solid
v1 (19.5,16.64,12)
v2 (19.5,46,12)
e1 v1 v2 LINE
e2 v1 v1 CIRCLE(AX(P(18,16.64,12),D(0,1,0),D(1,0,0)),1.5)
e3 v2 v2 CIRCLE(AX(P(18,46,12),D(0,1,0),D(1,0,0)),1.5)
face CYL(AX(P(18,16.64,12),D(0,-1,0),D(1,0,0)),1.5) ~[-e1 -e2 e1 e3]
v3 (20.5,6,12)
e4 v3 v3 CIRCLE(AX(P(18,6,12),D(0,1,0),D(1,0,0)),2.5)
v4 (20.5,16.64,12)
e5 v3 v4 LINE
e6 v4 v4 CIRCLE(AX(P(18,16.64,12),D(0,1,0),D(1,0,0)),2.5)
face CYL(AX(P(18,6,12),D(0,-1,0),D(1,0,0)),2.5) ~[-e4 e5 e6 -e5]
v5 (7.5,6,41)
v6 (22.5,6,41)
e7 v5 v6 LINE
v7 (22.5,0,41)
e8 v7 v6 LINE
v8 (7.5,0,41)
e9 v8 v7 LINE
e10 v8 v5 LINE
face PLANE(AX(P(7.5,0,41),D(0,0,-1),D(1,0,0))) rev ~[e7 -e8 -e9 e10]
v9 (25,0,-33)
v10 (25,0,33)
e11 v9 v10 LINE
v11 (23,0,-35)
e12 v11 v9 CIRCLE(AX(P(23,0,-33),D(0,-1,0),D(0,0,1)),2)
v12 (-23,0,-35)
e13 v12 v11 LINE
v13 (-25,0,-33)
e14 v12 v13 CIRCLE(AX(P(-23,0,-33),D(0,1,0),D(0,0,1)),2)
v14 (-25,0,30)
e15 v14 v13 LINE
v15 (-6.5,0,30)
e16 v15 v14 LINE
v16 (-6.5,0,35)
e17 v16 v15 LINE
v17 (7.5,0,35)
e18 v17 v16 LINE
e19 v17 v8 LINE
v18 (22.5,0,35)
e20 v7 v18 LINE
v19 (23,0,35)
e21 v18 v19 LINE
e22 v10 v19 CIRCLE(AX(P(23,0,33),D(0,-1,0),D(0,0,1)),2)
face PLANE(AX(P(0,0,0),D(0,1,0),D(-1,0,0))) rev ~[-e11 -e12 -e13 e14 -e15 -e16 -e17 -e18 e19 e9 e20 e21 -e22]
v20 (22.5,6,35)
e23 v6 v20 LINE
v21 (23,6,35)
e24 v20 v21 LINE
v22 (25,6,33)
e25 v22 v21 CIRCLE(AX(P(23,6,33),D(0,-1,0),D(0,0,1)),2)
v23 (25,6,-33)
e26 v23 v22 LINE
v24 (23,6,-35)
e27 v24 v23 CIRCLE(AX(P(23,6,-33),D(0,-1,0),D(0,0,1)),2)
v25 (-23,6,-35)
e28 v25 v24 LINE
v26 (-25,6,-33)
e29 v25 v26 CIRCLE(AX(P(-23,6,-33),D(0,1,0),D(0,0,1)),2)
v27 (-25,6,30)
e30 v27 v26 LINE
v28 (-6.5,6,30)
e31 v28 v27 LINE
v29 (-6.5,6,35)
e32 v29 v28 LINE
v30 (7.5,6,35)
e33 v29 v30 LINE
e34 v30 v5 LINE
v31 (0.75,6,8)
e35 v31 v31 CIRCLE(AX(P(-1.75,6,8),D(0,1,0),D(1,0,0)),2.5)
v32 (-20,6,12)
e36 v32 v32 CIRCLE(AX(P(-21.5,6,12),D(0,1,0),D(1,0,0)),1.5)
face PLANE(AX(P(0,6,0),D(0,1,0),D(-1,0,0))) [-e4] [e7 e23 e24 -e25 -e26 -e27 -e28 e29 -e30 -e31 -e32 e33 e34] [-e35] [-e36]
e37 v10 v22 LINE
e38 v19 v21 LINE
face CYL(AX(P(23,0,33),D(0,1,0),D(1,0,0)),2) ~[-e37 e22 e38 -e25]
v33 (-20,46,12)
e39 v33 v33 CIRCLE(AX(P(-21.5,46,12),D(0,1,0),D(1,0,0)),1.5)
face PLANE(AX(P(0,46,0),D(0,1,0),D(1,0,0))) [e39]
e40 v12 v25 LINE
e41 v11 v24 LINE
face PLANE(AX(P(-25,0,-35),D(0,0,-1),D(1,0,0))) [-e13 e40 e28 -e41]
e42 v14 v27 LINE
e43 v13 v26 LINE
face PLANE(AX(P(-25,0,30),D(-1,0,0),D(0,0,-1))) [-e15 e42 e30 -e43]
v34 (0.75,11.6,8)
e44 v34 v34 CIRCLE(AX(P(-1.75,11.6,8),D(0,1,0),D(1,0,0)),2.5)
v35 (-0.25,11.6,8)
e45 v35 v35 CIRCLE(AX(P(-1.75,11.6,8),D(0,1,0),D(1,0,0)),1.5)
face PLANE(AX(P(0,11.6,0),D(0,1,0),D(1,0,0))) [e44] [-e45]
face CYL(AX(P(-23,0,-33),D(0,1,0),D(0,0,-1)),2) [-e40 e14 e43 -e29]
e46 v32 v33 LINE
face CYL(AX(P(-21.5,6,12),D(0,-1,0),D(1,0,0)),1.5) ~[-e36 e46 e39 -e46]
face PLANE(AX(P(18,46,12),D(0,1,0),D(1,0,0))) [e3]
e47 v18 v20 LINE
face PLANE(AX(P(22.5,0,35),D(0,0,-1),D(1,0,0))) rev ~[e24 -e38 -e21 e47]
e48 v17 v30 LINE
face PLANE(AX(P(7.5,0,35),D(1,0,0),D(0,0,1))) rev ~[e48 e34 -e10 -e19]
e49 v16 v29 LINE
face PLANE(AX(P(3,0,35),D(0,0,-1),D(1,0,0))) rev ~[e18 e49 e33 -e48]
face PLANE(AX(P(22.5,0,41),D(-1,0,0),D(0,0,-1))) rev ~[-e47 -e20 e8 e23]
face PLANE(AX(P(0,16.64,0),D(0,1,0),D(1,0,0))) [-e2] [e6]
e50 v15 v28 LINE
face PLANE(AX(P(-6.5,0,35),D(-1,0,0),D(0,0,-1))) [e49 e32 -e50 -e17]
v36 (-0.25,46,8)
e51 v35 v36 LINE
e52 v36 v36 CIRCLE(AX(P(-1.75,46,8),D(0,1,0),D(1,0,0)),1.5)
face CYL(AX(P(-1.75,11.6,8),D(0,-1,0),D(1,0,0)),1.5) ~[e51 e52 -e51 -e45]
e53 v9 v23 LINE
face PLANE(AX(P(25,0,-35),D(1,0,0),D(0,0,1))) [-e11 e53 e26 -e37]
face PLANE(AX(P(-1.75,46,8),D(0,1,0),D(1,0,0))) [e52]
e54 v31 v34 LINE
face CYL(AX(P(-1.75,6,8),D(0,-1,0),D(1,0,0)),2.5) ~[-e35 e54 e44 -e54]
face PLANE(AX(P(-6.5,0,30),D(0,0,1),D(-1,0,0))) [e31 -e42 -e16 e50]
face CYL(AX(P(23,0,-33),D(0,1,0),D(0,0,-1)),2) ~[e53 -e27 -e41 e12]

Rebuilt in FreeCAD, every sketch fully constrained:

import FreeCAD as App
import Part
import Sketcher
from FreeCAD import Vector
Q = App.Units.Quantity


def edges_at(feature, points):
    """Names of the edges that pass closest to the given points."""
    edges = feature.Shape.Edges
    near = lambda p: min(range(len(edges)), key=lambda i: edges[i].distToShape(Part.Vertex(*p))[0])
    return sorted({f"Edge{near(p) + 1}" for p in points})

doc = App.newDocument("Part")
params = doc.addObject("Spreadsheet::Sheet", "Params")
for row, (alias, value) in enumerate([
    ("sketch1_width", "50 mm"),
    ("sketch1_width2", "15 mm"),
    ("sketch1_height", "5 mm"),
    ("sketch1_height2", "6 mm"),
    ("sketch1_height3", "70 mm"),
    ("pad1_length", "6 mm"),
    ("fillet_radius", "2 mm"),
    ("sketch2_diameter", "3 mm"),
    ("pad2_length", "40 mm"),
    ("sketch3_diameter", "5 mm"),
    ("pad3_length", "5.6 mm"),
    ("sketch4_diameter", "3 mm"),
    ("pad4_length", "34.4 mm"),
    ("sketch5_diameter", "5 mm"),
    ("pad5_length", "10.64 mm"),
    ("sketch6_diameter", "3 mm"),
    ("pad6_length", "29.36 mm"),
], start=1):
    params.set(f"A{row}", alias)
    params.set(f"B{row}", "=" + value)
    params.setAlias(f"B{row}", alias)

body = doc.addObject("PartDesign::Body", "Body")

# Sketch on XZ plane
sketch1 = body.newObject("Sketcher::SketchObject", "Sketch")
sketch1.AttachmentSupport = (doc.getObject("XZ_Plane"), [""])
sketch1.MapMode = "FlatFace"
sketch1.addGeometry([
    Part.LineSegment(Vector(25, -35, 0), Vector(-25, -35, 0)),  # 0
    Part.LineSegment(Vector(-25, -35, 0), Vector(-25, 30, 0)),  # 1
    Part.LineSegment(Vector(-25, 30, 0), Vector(-6.5, 30, 0)),  # 2
    Part.LineSegment(Vector(-6.5, 30, 0), Vector(-6.5, 35, 0)),  # 3
    Part.LineSegment(Vector(-6.5, 35, 0), Vector(7.5, 35, 0)),  # 4
    Part.LineSegment(Vector(7.5, 35, 0), Vector(7.5, 41, 0)),  # 5
    Part.LineSegment(Vector(7.5, 41, 0), Vector(22.5, 41, 0)),  # 6
    Part.LineSegment(Vector(22.5, 41, 0), Vector(22.5, 35, 0)),  # 7
    Part.LineSegment(Vector(22.5, 35, 0), Vector(25, 35, 0)),  # 8
    Part.LineSegment(Vector(25, 35, 0), Vector(25, -35, 0)),  # 9
], False)
sketch1.addConstraint([
    Sketcher.Constraint("Coincident", 0, 2, 1, 1),
    Sketcher.Constraint("Coincident", 1, 2, 2, 1),
    Sketcher.Constraint("Coincident", 2, 2, 3, 1),
    Sketcher.Constraint("Coincident", 3, 2, 4, 1),
    Sketcher.Constraint("Coincident", 4, 2, 5, 1),
    Sketcher.Constraint("Coincident", 5, 2, 6, 1),
    Sketcher.Constraint("Coincident", 6, 2, 7, 1),
    Sketcher.Constraint("Coincident", 7, 2, 8, 1),
    Sketcher.Constraint("Coincident", 8, 2, 9, 1),
    Sketcher.Constraint("Coincident", 9, 2, 0, 1),
    Sketcher.Constraint("Horizontal", 0),
    Sketcher.Constraint("Vertical", 1),
    Sketcher.Constraint("Horizontal", 2),
    Sketcher.Constraint("Vertical", 3),
    Sketcher.Constraint("Horizontal", 4),
    Sketcher.Constraint("Vertical", 5),
    Sketcher.Constraint("Horizontal", 6),
    Sketcher.Constraint("Vertical", 7),
    Sketcher.Constraint("Horizontal", 8),
    Sketcher.Constraint("Vertical", 9),
    Sketcher.Constraint("Symmetric", 0, 2, 8, 2, -1, 1),
    Sketcher.Constraint("Horizontal", 4, 2, 7, 2),
    Sketcher.Constraint("DistanceX", 0, 2, 0, 1, Q("50 mm")),
    Sketcher.Constraint("DistanceX", 6, 1, 6, 2, Q("15 mm")),
    Sketcher.Constraint("DistanceY", 3, 1, 3, 2, Q("5 mm")),
    Sketcher.Constraint("DistanceY", 5, 1, 5, 2, Q("6 mm")),
    Sketcher.Constraint("DistanceY", 9, 2, 9, 1, Q("70 mm")),
    Sketcher.Constraint("DistanceX", 2, 1, 2, 2, Q("18.5 mm")),
    Sketcher.Constraint("DistanceX", 8, 1, 8, 2, Q("2.5 mm")),
])
sketch1.setExpression("Constraints[22]", "Params.sketch1_width")
sketch1.setExpression("Constraints[23]", "Params.sketch1_width2")
sketch1.setExpression("Constraints[24]", "Params.sketch1_height")
sketch1.setExpression("Constraints[25]", "Params.sketch1_height2")
sketch1.setExpression("Constraints[26]", "Params.sketch1_height3")
pad1 = body.newObject("PartDesign::Pad", "Pad")
pad1.Profile = sketch1
pad1.setExpression("Length", "Params.pad1_length")
pad1.Reversed = True
doc.recompute()

fillet = body.newObject("PartDesign::Fillet", "Fillet")
fillet.Base = (pad1, edges_at(pad1, [(25, 3, -35), (-25, 3, -35), (25, 3, 35)]))
fillet.setExpression("Radius", "Params.fillet_radius")

# Sketch on XZ plane
sketch2 = body.newObject("Sketcher::SketchObject", "Sketch001")
sketch2.AttachmentSupport = (doc.getObject("XZ_Plane"), [""])
sketch2.MapMode = "FlatFace"
sketch2.AttachmentOffset = App.Placement(Vector(0, 0, -6), App.Rotation())
sketch2.addGeometry(Part.Circle(Vector(-21.5, 12, 0), Vector(0, 0, 1), 1.5), False)
sketch2.addConstraint([
    Sketcher.Constraint("Diameter", 0, Q("3 mm")),
    Sketcher.Constraint("DistanceY", -1, 1, 0, 3, Q("12 mm")),
    Sketcher.Constraint("DistanceX", 0, 3, -1, 1, Q("21.5 mm")),
])
sketch2.setExpression("Constraints[0]", "Params.sketch2_diameter")
pad2 = body.newObject("PartDesign::Pad", "Pad001")
pad2.Profile = sketch2
pad2.setExpression("Length", "Params.pad2_length")
pad2.Reversed = True

# Sketch on XZ plane
sketch3 = body.newObject("Sketcher::SketchObject", "Sketch002")
sketch3.AttachmentSupport = (doc.getObject("XZ_Plane"), [""])
sketch3.MapMode = "FlatFace"
sketch3.AttachmentOffset = App.Placement(Vector(0, 0, -6), App.Rotation())
sketch3.addGeometry(Part.Circle(Vector(-1.75, 8, 0), Vector(0, 0, 1), 2.5), False)
sketch3.addConstraint([
    Sketcher.Constraint("Diameter", 0, Q("5 mm")),
    Sketcher.Constraint("DistanceY", -1, 1, 0, 3, Q("8 mm")),
    Sketcher.Constraint("DistanceX", 0, 3, -1, 1, Q("1.75 mm")),
])
sketch3.setExpression("Constraints[0]", "Params.sketch3_diameter")
pad3 = body.newObject("PartDesign::Pad", "Pad002")
pad3.Profile = sketch3
pad3.setExpression("Length", "Params.pad3_length")
pad3.Reversed = True

# Sketch on XZ plane
sketch4 = body.newObject("Sketcher::SketchObject", "Sketch003")
sketch4.AttachmentSupport = (doc.getObject("XZ_Plane"), [""])
sketch4.MapMode = "FlatFace"
sketch4.AttachmentOffset = App.Placement(Vector(0, 0, -11.6), App.Rotation())
sketch4.addGeometry(Part.Circle(Vector(-1.75, 8, 0), Vector(0, 0, 1), 1.5), False)
sketch4.addConstraint([
    Sketcher.Constraint("Diameter", 0, Q("3 mm")),
    Sketcher.Constraint("DistanceY", -1, 1, 0, 3, Q("8 mm")),
    Sketcher.Constraint("DistanceX", 0, 3, -1, 1, Q("1.75 mm")),
])
sketch4.setExpression("Constraints[0]", "Params.sketch4_diameter")
pad4 = body.newObject("PartDesign::Pad", "Pad003")
pad4.Profile = sketch4
pad4.setExpression("Length", "Params.pad4_length")
pad4.Reversed = True

# Sketch on XZ plane
sketch5 = body.newObject("Sketcher::SketchObject", "Sketch004")
sketch5.AttachmentSupport = (doc.getObject("XZ_Plane"), [""])
sketch5.MapMode = "FlatFace"
sketch5.AttachmentOffset = App.Placement(Vector(0, 0, -6), App.Rotation())
sketch5.addGeometry(Part.Circle(Vector(18, 12, 0), Vector(0, 0, 1), 2.5), False)
sketch5.addConstraint([
    Sketcher.Constraint("Diameter", 0, Q("5 mm")),
    Sketcher.Constraint("DistanceX", -1, 1, 0, 3, Q("18 mm")),
    Sketcher.Constraint("DistanceY", -1, 1, 0, 3, Q("12 mm")),
])
sketch5.setExpression("Constraints[0]", "Params.sketch5_diameter")
pad5 = body.newObject("PartDesign::Pad", "Pad004")
pad5.Profile = sketch5
pad5.setExpression("Length", "Params.pad5_length")
pad5.Reversed = True

# Sketch on XZ plane
sketch6 = body.newObject("Sketcher::SketchObject", "Sketch005")
sketch6.AttachmentSupport = (doc.getObject("XZ_Plane"), [""])
sketch6.MapMode = "FlatFace"
sketch6.AttachmentOffset = App.Placement(Vector(0, 0, -16.64), App.Rotation())
sketch6.addGeometry(Part.Circle(Vector(18, 12, 0), Vector(0, 0, 1), 1.5), False)
sketch6.addConstraint([
    Sketcher.Constraint("Diameter", 0, Q("3 mm")),
    Sketcher.Constraint("DistanceX", -1, 1, 0, 3, Q("18 mm")),
    Sketcher.Constraint("DistanceY", -1, 1, 0, 3, Q("12 mm")),
])
sketch6.setExpression("Constraints[0]", "Params.sketch6_diameter")
pad6 = body.newObject("PartDesign::Pad", "Pad005")
pad6.Profile = sketch6
pad6.setExpression("Length", "Params.pad6_length")
pad6.Reversed = True

doc.recompute()
